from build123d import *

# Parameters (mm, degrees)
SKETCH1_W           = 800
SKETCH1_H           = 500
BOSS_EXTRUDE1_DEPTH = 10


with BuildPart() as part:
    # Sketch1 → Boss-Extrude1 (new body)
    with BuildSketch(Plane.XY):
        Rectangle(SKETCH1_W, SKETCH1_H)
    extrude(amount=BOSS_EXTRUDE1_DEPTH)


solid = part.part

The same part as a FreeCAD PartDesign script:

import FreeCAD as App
import Part
import Sketcher
Q = App.Units.Quantity

doc = App.newDocument("Part")
params = doc.addObject("Spreadsheet::Sheet", "Params")
for row, (alias, value) in enumerate([
    ("sketch1_width", "800 mm"),
    ("sketch1_height", "500 mm"),
    ("pad1_length", "10 mm"),
], start=1):
    params.set(f"A{row}", alias)
    params.set(f"B{row}", "=" + value)
    params.setAlias(f"B{row}", alias)

body = doc.addObject("PartDesign::Body", "Body")

sketch1 = doc.addObject("Sketcher::SketchObject", "Sketch")
body.addObject(sketch1)
sketch1.AttachmentSupport = (doc.XY_Plane, [""])
sketch1.MapMode = "FlatFace"
sketch1.addGeometry([
    Part.LineSegment(App.Vector(-400, 250, 0), App.Vector(-400, -250, 0)),
    Part.LineSegment(App.Vector(-400, -250, 0), App.Vector(400, -250, 0)),
    Part.LineSegment(App.Vector(400, -250, 0), App.Vector(400, 250, 0)),
    Part.LineSegment(App.Vector(400, 250, 0), App.Vector(-400, 250, 0)),
], False)
sketch1.addConstraint([
    Sketcher.Constraint("Coincident", 0, 2, 1, 1),
    Sketcher.Constraint("Coincident", 1, 2, 2, 1),
    Sketcher.Constraint("Coincident", 2, 2, 3, 1),
    Sketcher.Constraint("Coincident", 3, 2, 0, 1),
    Sketcher.Constraint("Vertical", 0),
    Sketcher.Constraint("Horizontal", 1),
    Sketcher.Constraint("Vertical", 2),
    Sketcher.Constraint("Horizontal", 3),
    Sketcher.Constraint("Symmetric", 0, 2, 2, 2, -1, 1),
    Sketcher.Constraint("DistanceX", 1, 1, 1, 2, Q("800 mm")),
    Sketcher.Constraint("DistanceY", 0, 2, 0, 1, Q("500 mm")),
])
sketch1.setExpression("Constraints[9]", "Params.sketch1_width")
sketch1.setExpression("Constraints[10]", "Params.sketch1_height")
pad1 = doc.addObject("PartDesign::Pad", "Pad")
body.addObject(pad1)
pad1.Profile = sketch1
pad1.setExpression("Length", "Params.pad1_length")

doc.recompute()
